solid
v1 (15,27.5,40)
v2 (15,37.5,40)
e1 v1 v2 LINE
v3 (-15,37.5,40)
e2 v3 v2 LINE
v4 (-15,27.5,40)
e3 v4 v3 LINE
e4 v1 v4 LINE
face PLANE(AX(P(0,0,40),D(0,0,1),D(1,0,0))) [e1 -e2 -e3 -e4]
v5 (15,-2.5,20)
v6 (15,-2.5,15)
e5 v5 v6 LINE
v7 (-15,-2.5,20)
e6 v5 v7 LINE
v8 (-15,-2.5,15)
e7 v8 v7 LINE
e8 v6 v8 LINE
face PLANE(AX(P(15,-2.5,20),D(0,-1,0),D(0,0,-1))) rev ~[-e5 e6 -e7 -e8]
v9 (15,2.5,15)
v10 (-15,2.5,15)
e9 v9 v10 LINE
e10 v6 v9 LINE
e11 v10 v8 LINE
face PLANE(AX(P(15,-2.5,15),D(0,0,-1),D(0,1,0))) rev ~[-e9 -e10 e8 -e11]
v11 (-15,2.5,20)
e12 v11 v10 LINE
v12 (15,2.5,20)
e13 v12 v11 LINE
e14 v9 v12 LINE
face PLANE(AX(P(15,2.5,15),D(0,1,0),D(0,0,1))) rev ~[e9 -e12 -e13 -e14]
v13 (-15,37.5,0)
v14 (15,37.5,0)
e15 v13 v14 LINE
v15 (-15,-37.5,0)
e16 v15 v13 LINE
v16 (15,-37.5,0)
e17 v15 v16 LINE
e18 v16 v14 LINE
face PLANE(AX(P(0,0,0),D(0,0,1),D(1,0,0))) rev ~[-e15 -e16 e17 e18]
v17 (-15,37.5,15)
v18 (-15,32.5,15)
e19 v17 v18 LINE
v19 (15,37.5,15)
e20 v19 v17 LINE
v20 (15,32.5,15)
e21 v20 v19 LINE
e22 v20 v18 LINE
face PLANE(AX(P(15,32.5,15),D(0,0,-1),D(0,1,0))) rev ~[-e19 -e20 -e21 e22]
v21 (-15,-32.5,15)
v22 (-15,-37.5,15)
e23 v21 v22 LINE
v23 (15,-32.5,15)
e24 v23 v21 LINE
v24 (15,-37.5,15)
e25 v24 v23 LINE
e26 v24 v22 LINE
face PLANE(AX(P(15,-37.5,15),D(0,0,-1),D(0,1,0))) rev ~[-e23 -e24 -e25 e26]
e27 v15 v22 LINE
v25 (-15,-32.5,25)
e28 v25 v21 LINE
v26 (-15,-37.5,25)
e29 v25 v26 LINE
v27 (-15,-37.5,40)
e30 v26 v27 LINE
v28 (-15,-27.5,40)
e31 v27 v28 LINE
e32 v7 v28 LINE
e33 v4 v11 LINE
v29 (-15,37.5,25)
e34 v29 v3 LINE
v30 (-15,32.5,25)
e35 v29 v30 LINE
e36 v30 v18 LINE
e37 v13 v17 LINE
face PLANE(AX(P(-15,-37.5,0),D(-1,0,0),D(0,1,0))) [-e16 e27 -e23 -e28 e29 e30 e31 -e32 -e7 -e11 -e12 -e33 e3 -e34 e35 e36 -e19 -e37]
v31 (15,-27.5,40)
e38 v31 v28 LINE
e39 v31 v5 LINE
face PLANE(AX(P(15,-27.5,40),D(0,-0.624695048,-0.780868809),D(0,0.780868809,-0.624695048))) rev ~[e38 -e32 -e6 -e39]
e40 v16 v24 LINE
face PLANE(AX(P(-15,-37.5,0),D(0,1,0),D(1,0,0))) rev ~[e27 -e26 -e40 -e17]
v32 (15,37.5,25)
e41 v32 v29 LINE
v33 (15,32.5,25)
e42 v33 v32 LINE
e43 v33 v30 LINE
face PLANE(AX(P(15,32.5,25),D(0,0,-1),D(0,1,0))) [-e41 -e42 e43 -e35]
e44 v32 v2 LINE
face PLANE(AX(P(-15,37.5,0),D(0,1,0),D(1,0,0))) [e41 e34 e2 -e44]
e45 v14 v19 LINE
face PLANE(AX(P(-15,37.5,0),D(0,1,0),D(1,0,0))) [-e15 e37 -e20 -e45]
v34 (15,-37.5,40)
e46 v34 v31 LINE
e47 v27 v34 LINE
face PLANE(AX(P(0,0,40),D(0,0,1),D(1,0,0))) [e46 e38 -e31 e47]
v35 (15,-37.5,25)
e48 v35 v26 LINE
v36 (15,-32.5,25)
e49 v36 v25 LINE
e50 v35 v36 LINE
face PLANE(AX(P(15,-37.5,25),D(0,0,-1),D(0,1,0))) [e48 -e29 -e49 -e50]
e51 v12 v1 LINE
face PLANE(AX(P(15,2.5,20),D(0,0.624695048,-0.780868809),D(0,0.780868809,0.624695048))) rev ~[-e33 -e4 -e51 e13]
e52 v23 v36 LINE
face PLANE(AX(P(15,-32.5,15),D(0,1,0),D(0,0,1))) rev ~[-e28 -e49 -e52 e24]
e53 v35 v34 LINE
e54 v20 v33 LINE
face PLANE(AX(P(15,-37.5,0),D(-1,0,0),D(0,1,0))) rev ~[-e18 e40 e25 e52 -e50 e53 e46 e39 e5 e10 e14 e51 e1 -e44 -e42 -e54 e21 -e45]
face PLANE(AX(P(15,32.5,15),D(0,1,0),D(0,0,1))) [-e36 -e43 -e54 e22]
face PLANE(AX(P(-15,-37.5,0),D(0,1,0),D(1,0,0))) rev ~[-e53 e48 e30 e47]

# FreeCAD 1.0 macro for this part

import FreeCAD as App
import Part
import Sketcher

V = App.Vector
Q = App.Units.Quantity

doc = App.newDocument("Part")
body = doc.addObject("PartDesign::Body", "Body")

# Sketch on XY plane
sketch1 = doc.addObject("Sketcher::SketchObject", "Sketch")
body.addObject(sketch1)
sketch1.AttachmentSupport = (doc.XY_Plane, [""])
sketch1.MapMode = "FlatFace"
sketch1.addGeometry(Part.LineSegment(V(-15, 38, 0), V(-15, -38, 0)), False)
sketch1.addGeometry(Part.LineSegment(V(-15, -38, 0), V(15, -38, 0)), False)
sketch1.addGeometry(Part.LineSegment(V(15, -38, 0), V(15, 38, 0)), False)
sketch1.addGeometry(Part.LineSegment(V(15, 38, 0), V(-15, 38, 0)), False)
sketch1.addConstraint(Sketcher.Constraint("Coincident", 0, 2, 1, 1))
sketch1.addConstraint(Sketcher.Constraint("Coincident", 1, 2, 2, 1))
sketch1.addConstraint(Sketcher.Constraint("Coincident", 2, 2, 3, 1))
sketch1.addConstraint(Sketcher.Constraint("Coincident", 3, 2, 0, 1))
sketch1.addConstraint(Sketcher.Constraint("Vertical", 0))
sketch1.addConstraint(Sketcher.Constraint("Horizontal", 1))
sketch1.addConstraint(Sketcher.Constraint("Vertical", 2))
sketch1.addConstraint(Sketcher.Constraint("Horizontal", 3))
sketch1.addConstraint(Sketcher.Constraint("Symmetric", 0, 2, 2, 2, -1, 1))
sketch1.addConstraint(Sketcher.Constraint("DistanceX", 1, 1, 1, 2, Q("30 mm")))
sketch1.addConstraint(Sketcher.Constraint("DistanceY", 0, 2, 0, 1, Q("75 mm")))
pad1 = doc.addObject("PartDesign::Pad", "Pad")
body.addObject(pad1)
pad1.Profile = sketch1
pad1.Length = 40

# Sketch on YZ plane
sketch2 = doc.addObject("Sketcher::SketchObject", "Sketch001")
body.addObject(sketch2)
sketch2.AttachmentSupport = (doc.YZ_Plane, [""])
sketch2.MapMode = "FlatFace"
sketch2.AttachmentOffset = App.Placement(V(0, 0, 15), App.Rotation())
sketch2.addGeometry(Part.LineSegment(V(-38, 25, 0), V(-38, 15, 0)), False)
sketch2.addGeometry(Part.LineSegment(V(-38, 15, 0), V(-32, 15, 0)), False)
sketch2.addGeometry(Part.LineSegment(V(-32, 15, 0), V(-32, 25, 0)), False)
sketch2.addGeometry(Part.LineSegment(V(-32, 25, 0), V(-38, 25, 0)), False)
sketch2.addGeometry(Part.LineSegment(V(32, 25, 0), V(32, 15, 0)), False)
sketch2.addGeometry(Part.LineSegment(V(32, 15, 0), V(38, 15, 0)), False)
sketch2.addGeometry(Part.LineSegment(V(38, 15, 0), V(38, 25, 0)), False)
sketch2.addGeometry(Part.LineSegment(V(38, 25, 0), V(32, 25, 0)), False)
sketch2.addGeometry(Part.LineSegment(V(-2, 20, 0), V(-2, 15, 0)), False)
sketch2.addGeometry(Part.LineSegment(V(-2, 15, 0), V(2, 15, 0)), False)
sketch2.addGeometry(Part.LineSegment(V(2, 15, 0), V(2, 20, 0)), False)
sketch2.addGeometry(Part.LineSegment(V(2, 20, 0), V(28, 40, 0)), False)
sketch2.addGeometry(Part.LineSegment(V(28, 40, 0), V(-28, 40, 0)), False)
sketch2.addGeometry(Part.LineSegment(V(-28, 40, 0), V(-2, 20, 0)), False)
sketch2.addConstraint(Sketcher.Constraint("Coincident", 0, 2, 1, 1))
sketch2.addConstraint(Sketcher.Constraint("Coincident", 1, 2, 2, 1))
sketch2.addConstraint(Sketcher.Constraint("Coincident", 2, 2, 3, 1))
sketch2.addConstraint(Sketcher.Constraint("Coincident", 3, 2, 0, 1))
sketch2.addConstraint(Sketcher.Constraint("Coincident", 4, 2, 5, 1))
sketch2.addConstraint(Sketcher.Constraint("Coincident", 5, 2, 6, 1))
sketch2.addConstraint(Sketcher.Constraint("Coincident", 6, 2, 7, 1))
sketch2.addConstraint(Sketcher.Constraint("Coincident", 7, 2, 4, 1))
sketch2.addConstraint(Sketcher.Constraint("Coincident", 8, 2, 9, 1))
sketch2.addConstraint(Sketcher.Constraint("Coincident", 9, 2, 10, 1))
sketch2.addConstraint(Sketcher.Constraint("Coincident", 10, 2, 11, 1))
sketch2.addConstraint(Sketcher.Constraint("Coincident", 11, 2, 12, 1))
sketch2.addConstraint(Sketcher.Constraint("Coincident", 12, 2, 13, 1))
sketch2.addConstraint(Sketcher.Constraint("Coincident", 13, 2, 8, 1))
sketch2.addConstraint(Sketcher.Constraint("Vertical", 0))
sketch2.addConstraint(Sketcher.Constraint("Horizontal", 1))
sketch2.addConstraint(Sketcher.Constraint("Vertical", 2))
sketch2.addConstraint(Sketcher.Constraint("Horizontal", 3))
sketch2.addConstraint(Sketcher.Constraint("Vertical", 4))
sketch2.addConstraint(Sketcher.Constraint("Horizontal", 5))
sketch2.addConstraint(Sketcher.Constraint("Vertical", 6))
sketch2.addConstraint(Sketcher.Constraint("Horizontal", 7))
sketch2.addConstraint(Sketcher.Constraint("Vertical", 8))
sketch2.addConstraint(Sketcher.Constraint("Horizontal", 9))
sketch2.addConstraint(Sketcher.Constraint("Vertical", 10))
sketch2.addConstraint(Sketcher.Constraint("Horizontal", 12))
sketch2.addConstraint(Sketcher.Constraint("Symmetric", 1, 2, 4, 2, -2))
sketch2.addConstraint(Sketcher.Constraint("Symmetric", 3, 2, 6, 2, -2))
sketch2.addConstraint(Sketcher.Constraint("Symmetric", 10, 2, 13, 2, -2))
sketch2.addConstraint(Sketcher.Constraint("Horizontal", 5, 2, 8, 2))
sketch2.addConstraint(Sketcher.Constraint("Equal", 7, 9))
sketch2.addConstraint(Sketcher.Constraint("Equal", 9, 8))
sketch2.addConstraint(Sketcher.Constraint("Equal", 11, 13))
sketch2.addConstraint(Sketcher.Constraint("DistanceX", 1, 1, 1, 2, Q("5 mm")))
sketch2.addConstraint(Sketcher.Constraint("DistanceX", 12, 2, 12, 1, Q("55 mm")))
sketch2.addConstraint(Sketcher.Constraint("DistanceY", 0, 2, 0, 1, Q("10 mm")))
sketch2.addConstraint(Sketcher.Constraint("DistanceY", -1, 1, 0, 2, Q("15 mm")))
sketch2.addConstraint(Sketcher.Constraint("DistanceY", -1, 1, 11, 2, Q("40 mm")))
sketch2.addConstraint(Sketcher.Constraint("DistanceX", 1, 2, 4, 2, Q("65 mm")))
pocket1 = doc.addObject("PartDesign::Pocket", "Pocket")
body.addObject(pocket1)
pocket1.Profile = sketch2
pocket1.Type = "ThroughAll"

doc.recompute()
